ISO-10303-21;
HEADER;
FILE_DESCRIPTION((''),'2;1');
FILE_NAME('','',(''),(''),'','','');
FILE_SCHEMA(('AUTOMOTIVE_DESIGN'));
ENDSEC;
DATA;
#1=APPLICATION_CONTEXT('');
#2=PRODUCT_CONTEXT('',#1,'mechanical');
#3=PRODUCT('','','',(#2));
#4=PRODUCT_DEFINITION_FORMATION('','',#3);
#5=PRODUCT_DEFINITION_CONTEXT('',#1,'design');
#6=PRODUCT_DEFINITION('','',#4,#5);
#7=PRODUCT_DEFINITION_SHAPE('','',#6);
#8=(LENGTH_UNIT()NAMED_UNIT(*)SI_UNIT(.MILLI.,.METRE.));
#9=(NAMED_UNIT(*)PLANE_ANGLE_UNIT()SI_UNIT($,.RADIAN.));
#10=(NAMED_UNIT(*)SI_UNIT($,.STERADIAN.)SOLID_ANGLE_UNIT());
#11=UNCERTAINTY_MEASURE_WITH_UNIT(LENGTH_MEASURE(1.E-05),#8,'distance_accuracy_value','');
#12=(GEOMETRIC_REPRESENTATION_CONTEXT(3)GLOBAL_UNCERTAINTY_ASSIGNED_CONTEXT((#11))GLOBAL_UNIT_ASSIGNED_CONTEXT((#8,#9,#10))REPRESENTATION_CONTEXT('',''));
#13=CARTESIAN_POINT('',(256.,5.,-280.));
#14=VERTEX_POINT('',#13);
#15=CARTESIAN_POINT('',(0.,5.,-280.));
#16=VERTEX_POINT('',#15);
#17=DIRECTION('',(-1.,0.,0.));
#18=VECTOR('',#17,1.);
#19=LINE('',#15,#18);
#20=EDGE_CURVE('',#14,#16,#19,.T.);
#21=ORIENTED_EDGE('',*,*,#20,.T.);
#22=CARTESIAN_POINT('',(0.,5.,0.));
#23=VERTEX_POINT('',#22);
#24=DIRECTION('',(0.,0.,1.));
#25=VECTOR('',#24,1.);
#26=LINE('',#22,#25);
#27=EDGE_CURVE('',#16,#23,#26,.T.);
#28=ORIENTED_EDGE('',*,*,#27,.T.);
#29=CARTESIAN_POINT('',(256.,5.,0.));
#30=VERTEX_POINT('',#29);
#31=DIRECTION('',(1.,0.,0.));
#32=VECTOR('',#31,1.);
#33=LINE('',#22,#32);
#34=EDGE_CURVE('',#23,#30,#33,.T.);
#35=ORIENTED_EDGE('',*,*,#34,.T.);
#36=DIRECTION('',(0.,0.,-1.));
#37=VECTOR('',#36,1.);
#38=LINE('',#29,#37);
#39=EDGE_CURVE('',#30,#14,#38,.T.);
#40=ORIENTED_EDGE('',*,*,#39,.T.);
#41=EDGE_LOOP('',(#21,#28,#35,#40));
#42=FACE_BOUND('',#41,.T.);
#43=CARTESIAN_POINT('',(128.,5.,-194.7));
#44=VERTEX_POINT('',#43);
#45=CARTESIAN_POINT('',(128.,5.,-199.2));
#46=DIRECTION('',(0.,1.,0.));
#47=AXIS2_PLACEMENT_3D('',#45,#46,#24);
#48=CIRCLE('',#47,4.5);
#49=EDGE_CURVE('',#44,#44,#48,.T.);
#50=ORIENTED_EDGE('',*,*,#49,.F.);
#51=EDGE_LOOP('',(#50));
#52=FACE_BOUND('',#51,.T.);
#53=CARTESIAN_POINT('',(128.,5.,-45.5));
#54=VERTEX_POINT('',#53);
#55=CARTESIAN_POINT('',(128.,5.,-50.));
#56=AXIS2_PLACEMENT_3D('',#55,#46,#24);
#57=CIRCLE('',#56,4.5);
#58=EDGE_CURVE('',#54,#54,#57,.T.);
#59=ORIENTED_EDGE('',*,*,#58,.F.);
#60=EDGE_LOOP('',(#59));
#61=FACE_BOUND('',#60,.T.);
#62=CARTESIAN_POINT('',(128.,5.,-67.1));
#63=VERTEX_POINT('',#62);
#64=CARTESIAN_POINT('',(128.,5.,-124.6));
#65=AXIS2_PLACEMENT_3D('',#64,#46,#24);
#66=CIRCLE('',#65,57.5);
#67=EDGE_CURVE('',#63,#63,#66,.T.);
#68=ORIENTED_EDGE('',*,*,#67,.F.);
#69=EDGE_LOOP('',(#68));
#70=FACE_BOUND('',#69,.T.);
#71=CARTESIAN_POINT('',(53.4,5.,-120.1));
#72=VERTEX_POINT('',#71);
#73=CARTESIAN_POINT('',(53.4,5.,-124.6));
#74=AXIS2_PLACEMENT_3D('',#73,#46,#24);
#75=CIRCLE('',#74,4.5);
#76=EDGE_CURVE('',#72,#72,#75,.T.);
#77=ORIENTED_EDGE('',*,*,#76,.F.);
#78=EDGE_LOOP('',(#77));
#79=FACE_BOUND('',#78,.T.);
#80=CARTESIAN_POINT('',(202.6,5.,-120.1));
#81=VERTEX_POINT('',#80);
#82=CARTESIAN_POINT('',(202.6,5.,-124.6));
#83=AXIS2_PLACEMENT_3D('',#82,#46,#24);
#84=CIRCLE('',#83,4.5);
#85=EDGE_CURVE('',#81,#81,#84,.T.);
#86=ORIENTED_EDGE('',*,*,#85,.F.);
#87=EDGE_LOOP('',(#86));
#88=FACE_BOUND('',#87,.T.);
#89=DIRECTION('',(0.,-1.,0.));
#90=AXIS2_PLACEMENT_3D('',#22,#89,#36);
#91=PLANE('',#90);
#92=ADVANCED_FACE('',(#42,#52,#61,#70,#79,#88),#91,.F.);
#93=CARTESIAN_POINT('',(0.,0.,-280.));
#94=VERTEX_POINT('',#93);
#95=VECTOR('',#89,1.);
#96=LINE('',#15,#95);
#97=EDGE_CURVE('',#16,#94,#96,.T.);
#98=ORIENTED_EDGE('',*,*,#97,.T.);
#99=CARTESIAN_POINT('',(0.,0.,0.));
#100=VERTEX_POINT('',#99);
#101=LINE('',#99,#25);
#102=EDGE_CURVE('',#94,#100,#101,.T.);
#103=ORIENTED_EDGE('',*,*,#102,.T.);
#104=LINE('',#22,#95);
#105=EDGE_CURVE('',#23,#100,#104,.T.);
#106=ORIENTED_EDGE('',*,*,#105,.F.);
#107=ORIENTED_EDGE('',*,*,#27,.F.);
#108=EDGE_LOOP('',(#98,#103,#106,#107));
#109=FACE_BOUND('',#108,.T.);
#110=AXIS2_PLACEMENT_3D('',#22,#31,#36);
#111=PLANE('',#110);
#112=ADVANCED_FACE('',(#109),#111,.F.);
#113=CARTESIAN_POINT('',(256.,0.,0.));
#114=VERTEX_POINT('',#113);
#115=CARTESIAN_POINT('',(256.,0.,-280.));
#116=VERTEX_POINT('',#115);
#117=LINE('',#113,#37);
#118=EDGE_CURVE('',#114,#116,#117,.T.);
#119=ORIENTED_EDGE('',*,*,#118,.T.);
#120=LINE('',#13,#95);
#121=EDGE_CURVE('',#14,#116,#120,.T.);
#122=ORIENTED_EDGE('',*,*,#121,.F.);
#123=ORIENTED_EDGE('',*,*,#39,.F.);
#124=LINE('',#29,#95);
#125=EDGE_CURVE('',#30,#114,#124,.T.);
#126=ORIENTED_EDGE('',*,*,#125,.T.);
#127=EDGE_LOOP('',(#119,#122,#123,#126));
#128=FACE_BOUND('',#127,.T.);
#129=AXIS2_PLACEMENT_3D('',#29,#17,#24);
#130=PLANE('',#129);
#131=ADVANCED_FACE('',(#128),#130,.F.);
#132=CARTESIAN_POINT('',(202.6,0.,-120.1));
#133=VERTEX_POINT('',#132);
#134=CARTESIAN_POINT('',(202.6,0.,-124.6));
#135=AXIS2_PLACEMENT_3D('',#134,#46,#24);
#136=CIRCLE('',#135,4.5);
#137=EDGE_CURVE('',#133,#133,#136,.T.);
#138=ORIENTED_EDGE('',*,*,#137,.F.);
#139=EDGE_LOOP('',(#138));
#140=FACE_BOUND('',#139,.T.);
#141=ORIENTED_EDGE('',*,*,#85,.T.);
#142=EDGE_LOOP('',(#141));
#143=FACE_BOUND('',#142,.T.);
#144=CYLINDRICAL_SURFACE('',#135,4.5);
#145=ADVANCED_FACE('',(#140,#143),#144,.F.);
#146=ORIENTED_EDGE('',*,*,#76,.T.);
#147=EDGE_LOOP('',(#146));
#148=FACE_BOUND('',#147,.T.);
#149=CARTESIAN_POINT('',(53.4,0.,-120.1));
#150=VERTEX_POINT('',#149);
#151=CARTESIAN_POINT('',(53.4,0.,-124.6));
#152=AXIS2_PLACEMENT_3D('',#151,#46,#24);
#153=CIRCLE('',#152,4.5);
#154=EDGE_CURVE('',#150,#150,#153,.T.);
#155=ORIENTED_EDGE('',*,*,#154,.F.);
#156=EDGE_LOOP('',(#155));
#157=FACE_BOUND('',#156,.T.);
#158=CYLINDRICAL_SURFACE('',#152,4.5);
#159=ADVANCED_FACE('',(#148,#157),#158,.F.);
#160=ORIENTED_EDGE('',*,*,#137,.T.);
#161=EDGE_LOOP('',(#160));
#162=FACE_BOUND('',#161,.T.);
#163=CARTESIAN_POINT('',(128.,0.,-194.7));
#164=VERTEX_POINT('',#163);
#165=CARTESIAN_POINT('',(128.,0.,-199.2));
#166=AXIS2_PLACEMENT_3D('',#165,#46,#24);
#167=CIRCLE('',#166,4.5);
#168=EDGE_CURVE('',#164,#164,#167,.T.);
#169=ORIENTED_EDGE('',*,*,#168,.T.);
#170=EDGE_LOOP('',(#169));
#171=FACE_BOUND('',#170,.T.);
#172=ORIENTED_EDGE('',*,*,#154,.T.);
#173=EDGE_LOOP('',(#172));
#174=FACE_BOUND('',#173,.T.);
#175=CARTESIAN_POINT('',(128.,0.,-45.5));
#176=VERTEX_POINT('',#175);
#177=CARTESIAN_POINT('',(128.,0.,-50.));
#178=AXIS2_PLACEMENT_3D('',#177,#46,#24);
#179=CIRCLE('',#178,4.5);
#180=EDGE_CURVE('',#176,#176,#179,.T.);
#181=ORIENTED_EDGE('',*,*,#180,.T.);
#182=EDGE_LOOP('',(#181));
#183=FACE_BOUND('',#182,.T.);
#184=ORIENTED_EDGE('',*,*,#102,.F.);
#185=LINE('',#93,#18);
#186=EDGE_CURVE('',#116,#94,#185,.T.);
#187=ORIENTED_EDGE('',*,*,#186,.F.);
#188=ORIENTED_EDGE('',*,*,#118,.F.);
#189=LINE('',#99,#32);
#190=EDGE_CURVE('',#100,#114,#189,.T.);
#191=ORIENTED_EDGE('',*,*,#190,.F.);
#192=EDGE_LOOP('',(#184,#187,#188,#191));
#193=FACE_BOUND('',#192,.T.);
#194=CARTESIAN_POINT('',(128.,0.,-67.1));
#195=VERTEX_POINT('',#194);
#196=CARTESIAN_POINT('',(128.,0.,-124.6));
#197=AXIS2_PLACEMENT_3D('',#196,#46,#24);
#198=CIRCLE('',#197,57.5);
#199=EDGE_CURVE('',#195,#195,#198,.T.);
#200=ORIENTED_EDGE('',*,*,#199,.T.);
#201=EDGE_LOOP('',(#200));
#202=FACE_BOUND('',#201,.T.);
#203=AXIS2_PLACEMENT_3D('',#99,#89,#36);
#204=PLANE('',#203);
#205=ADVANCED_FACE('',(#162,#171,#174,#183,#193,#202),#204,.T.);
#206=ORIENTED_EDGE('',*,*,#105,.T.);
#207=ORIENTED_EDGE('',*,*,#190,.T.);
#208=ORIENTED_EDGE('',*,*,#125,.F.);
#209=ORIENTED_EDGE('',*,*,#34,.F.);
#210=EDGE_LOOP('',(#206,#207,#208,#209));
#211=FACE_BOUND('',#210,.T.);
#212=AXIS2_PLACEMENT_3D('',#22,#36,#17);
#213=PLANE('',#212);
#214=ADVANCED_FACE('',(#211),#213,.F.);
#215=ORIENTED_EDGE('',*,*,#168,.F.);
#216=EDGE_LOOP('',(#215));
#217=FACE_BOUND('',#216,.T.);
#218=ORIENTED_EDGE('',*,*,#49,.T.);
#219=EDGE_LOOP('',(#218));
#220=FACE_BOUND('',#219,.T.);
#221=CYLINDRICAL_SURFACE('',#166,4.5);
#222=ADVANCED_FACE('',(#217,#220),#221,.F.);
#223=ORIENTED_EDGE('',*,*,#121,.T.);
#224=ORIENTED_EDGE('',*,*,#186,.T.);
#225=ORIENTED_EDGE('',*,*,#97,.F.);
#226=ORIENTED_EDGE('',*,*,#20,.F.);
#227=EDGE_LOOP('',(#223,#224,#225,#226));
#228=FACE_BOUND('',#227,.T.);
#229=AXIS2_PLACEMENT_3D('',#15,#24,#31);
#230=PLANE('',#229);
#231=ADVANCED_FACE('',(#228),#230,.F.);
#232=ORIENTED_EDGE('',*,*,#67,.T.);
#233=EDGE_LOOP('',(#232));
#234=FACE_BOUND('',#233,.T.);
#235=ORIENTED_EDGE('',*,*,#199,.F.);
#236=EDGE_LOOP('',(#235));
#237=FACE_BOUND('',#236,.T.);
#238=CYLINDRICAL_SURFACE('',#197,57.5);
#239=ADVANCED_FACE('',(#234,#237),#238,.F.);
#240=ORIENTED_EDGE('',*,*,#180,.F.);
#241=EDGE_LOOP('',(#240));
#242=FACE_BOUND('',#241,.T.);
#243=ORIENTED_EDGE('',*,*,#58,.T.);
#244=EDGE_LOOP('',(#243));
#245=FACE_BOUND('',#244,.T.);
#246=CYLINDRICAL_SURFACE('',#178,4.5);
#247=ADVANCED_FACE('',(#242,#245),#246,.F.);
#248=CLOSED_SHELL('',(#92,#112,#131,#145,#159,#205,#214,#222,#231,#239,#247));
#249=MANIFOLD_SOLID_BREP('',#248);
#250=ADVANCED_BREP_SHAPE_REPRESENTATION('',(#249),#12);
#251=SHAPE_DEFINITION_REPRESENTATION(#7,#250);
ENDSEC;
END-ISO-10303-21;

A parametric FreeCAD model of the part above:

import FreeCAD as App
import Part
import Sketcher
from FreeCAD import Vector
Q = App.Units.Quantity


def add_polygon(sketch, points):
    """Adds a closed chain of lines whose ends are joined by coincident constraints."""
    first, n = sketch.GeometryCount, len(points)
    for a, b in zip(points, points[1:] + points[:1]):
        sketch.addGeometry(Part.LineSegment(App.Vector(*a, 0), App.Vector(*b, 0)), False)
    for i in range(n):
        sketch.addConstraint(Sketcher.Constraint("Coincident", first + i, 2, first + (i + 1) % n, 1))

doc = App.newDocument("Part")
body = doc.addObject("PartDesign::Body", "Body")

# Sketch on XZ plane
sketch1 = body.newObject("Sketcher::SketchObject", "Sketch")
sketch1.AttachmentSupport = (doc.getObject("XZ_Plane"), [""])
sketch1.MapMode = "FlatFace"
add_polygon(sketch1, [(0, -280), (0, 0), (256, 0), (256, -280)])  # lines 0-3
sketch1.addConstraint(Sketcher.Constraint("Vertical", 0))
sketch1.addConstraint(Sketcher.Constraint("Horizontal", 1))
sketch1.addConstraint(Sketcher.Constraint("Vertical", 2))
sketch1.addConstraint(Sketcher.Constraint("Horizontal", 3))
sketch1.addConstraint(Sketcher.Constraint("Coincident", 0, 2, -1, 1))
sketch1.addConstraint(Sketcher.Constraint("DistanceX", 1, 1, 1, 2, Q("256 mm")))
sketch1.addConstraint(Sketcher.Constraint("DistanceY", 0, 1, 0, 2, Q("280 mm")))
pad1 = body.newObject("PartDesign::Pad", "Pad")
pad1.Profile = sketch1
pad1.Length = 5
pad1.Reversed = True

# Sketch on XZ plane
sketch2 = body.newObject("Sketcher::SketchObject", "Sketch001")
sketch2.AttachmentSupport = (doc.getObject("XZ_Plane"), [""])
sketch2.MapMode = "FlatFace"
sketch2.AttachmentOffset = App.Placement(Vector(0, 0, -5), App.Rotation())
sketch2.addGeometry(Part.Circle(Vector(128, -124.6, 0), Vector(0, 0, 1), 57.5), False)
sketch2.addGeometry(Part.Circle(Vector(128, -199.2, 0), Vector(0, 0, 1), 4.5), False)
sketch2.addGeometry(Part.Circle(Vector(202.6, -124.6, 0), Vector(0, 0, 1), 4.5), False)
sketch2.addGeometry(Part.Circle(Vector(128, -50, 0), Vector(0, 0, 1), 4.5), False)
sketch2.addGeometry(Part.Circle(Vector(53.4, -124.6, 0), Vector(0, 0, 1), 4.5), False)
sketch2.addConstraint(Sketcher.Constraint("Equal", 1, 2))
sketch2.addConstraint(Sketcher.Constraint("Equal", 2, 3))
sketch2.addConstraint(Sketcher.Constraint("Equal", 3, 4))
sketch2.addConstraint(Sketcher.Constraint("Horizontal", 0, 3, 2, 3))
sketch2.addConstraint(Sketcher.Constraint("Horizontal", 2, 3, 4, 3))
sketch2.addConstraint(Sketcher.Constraint("Vertical", 0, 3, 1, 3))
sketch2.addConstraint(Sketcher.Constraint("Vertical", 1, 3, 3, 3))
sketch2.addConstraint(Sketcher.Constraint("Diameter", 0, Q("115 mm")))
sketch2.addConstraint(Sketcher.Constraint("Diameter", 1, Q("9 mm")))
sketch2.addConstraint(Sketcher.Constraint("DistanceX", -1, 1, 0, 3, Q("128 mm")))
sketch2.addConstraint(Sketcher.Constraint("DistanceY", 3, 3, -1, 1, Q("50 mm")))
sketch2.addConstraint(Sketcher.Constraint("DistanceY", 0, 3, -1, 1, Q("124.6 mm")))
sketch2.addConstraint(Sketcher.Constraint("DistanceY", 1, 3, -1, 1, Q("199.2 mm")))
sketch2.addConstraint(Sketcher.Constraint("DistanceX", -1, 1, 2, 3, Q("202.6 mm")))
sketch2.addConstraint(Sketcher.Constraint("DistanceX", -1, 1, 4, 3, Q("53.4 mm")))
pocket1 = body.newObject("PartDesign::Pocket", "Pocket")
pocket1.Profile = sketch2
pocket1.Length = 5
pocket1.Reversed = True

doc.recompute()
